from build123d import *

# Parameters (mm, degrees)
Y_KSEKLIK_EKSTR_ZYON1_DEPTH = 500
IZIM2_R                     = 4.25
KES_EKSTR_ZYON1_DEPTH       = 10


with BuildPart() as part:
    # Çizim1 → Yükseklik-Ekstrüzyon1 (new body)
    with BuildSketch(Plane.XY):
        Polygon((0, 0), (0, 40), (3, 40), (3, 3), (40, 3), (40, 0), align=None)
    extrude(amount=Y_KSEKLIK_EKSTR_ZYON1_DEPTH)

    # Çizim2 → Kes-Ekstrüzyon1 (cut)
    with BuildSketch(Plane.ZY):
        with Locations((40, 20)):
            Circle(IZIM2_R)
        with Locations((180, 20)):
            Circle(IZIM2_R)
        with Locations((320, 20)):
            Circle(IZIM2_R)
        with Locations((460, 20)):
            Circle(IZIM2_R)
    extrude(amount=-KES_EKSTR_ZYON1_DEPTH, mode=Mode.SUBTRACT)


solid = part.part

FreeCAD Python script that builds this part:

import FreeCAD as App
import Part
import Sketcher
from FreeCAD import Vector
Q = App.Units.Quantity


def add_polygon(sketch, points):
    """Adds a closed chain of lines whose ends are joined by coincident constraints."""
    first, n = sketch.GeometryCount, len(points)
    for a, b in zip(points, points[1:] + points[:1]):
        sketch.addGeometry(Part.LineSegment(App.Vector(*a, 0), App.Vector(*b, 0)), False)
    for i in range(n):
        sketch.addConstraint(Sketcher.Constraint("Coincident", first + i, 2, first + (i + 1) % n, 1))

doc = App.newDocument("Part")
body = doc.addObject("PartDesign::Body", "Body")

# Sketch on XY plane
sketch1 = body.newObject("Sketcher::SketchObject", "Sketch")
sketch1.AttachmentSupport = (doc.getObject("XY_Plane"), [""])
sketch1.MapMode = "FlatFace"
add_polygon(sketch1, [(0, 40), (0, 0), (40, 0), (40, 3), (3, 3), (3, 40)])  # lines 0-5
sketch1.addConstraint([
    Sketcher.Constraint("Vertical", 0),
    Sketcher.Constraint("Horizontal", 1),
    Sketcher.Constraint("Vertical", 2),
    Sketcher.Constraint("Horizontal", 3),
    Sketcher.Constraint("Vertical", 4),
    Sketcher.Constraint("Horizontal", 5),
    Sketcher.Constraint("Coincident", 0, 2, -1, 1),
    Sketcher.Constraint("Equal", 1, 0),
    Sketcher.Constraint("Equal", 5, 2),
    Sketcher.Constraint("DistanceX", 1, 1, 1, 2, Q("40 mm")),
    Sketcher.Constraint("DistanceX", 3, 2, 3, 1, Q("37 mm")),
])
pad1 = body.newObject("PartDesign::Pad", "Pad")
pad1.Profile = sketch1
pad1.Length = 500

# Sketch on YZ plane
sketch2 = body.newObject("Sketcher::SketchObject", "Sketch001")
sketch2.AttachmentSupport = (doc.getObject("YZ_Plane"), [""])
sketch2.MapMode = "FlatFace"
sketch2.addGeometry([
    Part.Circle(Vector(20, 40, 0), Vector(0, 0, 1), 4.2),
    Part.Circle(Vector(20, 180, 0), Vector(0, 0, 1), 4.2),
    Part.Circle(Vector(20, 320, 0), Vector(0, 0, 1), 4.2),
    Part.Circle(Vector(20, 460, 0), Vector(0, 0, 1), 4.2),
], False)
sketch2.addConstraint([
    Sketcher.Constraint("Equal", 0, 1),
    Sketcher.Constraint("Equal", 1, 2),
    Sketcher.Constraint("Equal", 2, 3),
    Sketcher.Constraint("Vertical", 0, 3, 1, 3),
    Sketcher.Constraint("Vertical", 1, 3, 2, 3),
    Sketcher.Constraint("Vertical", 2, 3, 3, 3),
    Sketcher.Constraint("Diameter", 0, Q("8.5 mm")),
    Sketcher.Constraint("DistanceX", -1, 1, 0, 3, Q("20 mm")),
    Sketcher.Constraint("DistanceY", -1, 1, 0, 3, Q("40 mm")),
    Sketcher.Constraint("DistanceY", -1, 1, 1, 3, Q("180 mm")),
    Sketcher.Constraint("DistanceY", -1, 1, 2, 3, Q("320 mm")),
    Sketcher.Constraint("DistanceY", -1, 1, 3, 3, Q("460 mm")),
])
pocket1 = body.newObject("PartDesign::Pocket", "Pocket")
pocket1.Profile = sketch2
pocket1.Length = 10
pocket1.Reversed = True

doc.recompute()
